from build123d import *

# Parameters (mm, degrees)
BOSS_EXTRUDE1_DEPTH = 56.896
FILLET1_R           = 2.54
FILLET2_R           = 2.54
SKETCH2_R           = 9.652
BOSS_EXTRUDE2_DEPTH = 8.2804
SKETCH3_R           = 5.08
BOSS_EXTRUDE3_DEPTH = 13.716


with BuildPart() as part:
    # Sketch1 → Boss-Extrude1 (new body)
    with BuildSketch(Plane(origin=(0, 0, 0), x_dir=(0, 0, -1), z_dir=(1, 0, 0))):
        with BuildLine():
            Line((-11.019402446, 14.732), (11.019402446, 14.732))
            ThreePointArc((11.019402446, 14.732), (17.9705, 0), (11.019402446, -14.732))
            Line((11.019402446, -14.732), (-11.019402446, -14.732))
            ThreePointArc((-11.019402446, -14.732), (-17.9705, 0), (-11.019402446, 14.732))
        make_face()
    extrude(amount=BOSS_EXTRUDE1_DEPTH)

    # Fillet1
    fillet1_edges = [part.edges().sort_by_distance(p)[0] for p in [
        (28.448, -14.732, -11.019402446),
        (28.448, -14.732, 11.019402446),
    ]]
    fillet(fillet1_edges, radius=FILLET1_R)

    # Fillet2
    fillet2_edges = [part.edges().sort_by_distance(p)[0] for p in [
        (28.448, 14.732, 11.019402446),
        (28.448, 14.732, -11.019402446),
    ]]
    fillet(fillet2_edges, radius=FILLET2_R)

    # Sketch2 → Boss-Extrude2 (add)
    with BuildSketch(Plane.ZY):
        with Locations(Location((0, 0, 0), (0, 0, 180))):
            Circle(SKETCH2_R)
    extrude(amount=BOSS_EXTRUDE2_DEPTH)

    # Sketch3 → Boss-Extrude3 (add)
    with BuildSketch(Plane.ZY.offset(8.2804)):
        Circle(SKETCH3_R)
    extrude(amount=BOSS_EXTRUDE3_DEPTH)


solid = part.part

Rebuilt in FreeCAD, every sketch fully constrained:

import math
import FreeCAD as App
import Part
import Sketcher

V = App.Vector
Q = App.Units.Quantity


def edges_at(feature, points):
    """Names of the edges that pass closest to the given points."""
    edges = feature.Shape.Edges
    near = lambda p: min(range(len(edges)), key=lambda i: edges[i].distToShape(Part.Vertex(*p))[0])
    return sorted({f"Edge{near(p) + 1}" for p in points})

doc = App.newDocument("Part")
body = doc.addObject("PartDesign::Body", "Body")

# Sketch on YZ plane
sketch1 = doc.addObject("Sketcher::SketchObject", "Sketch")
body.addObject(sketch1)
sketch1.AttachmentSupport = (doc.YZ_Plane, [""])
sketch1.MapMode = "FlatFace"
sketch1.addGeometry([
    Part.LineSegment(V(15, -11, 0), V(15, 11, 0)),
    Part.ArcOfCircle(Part.Circle(V(0, -1, 0), V(0, 0, 1), 19), math.radians(39), math.radians(141)),
    Part.LineSegment(V(-15, 11, 0), V(-15, -11, 0)),
    Part.ArcOfCircle(Part.Circle(V(0, 1, 0), V(0, 0, 1), 19), math.radians(-141), math.radians(-39)),
], False)
sketch1.addConstraint([
    Sketcher.Constraint("Coincident", 0, 2, 1, 1),
    Sketcher.Constraint("Coincident", 1, 2, 2, 1),
    Sketcher.Constraint("Coincident", 2, 2, 3, 1),
    Sketcher.Constraint("Coincident", 3, 2, 0, 1),
    Sketcher.Constraint("Vertical", 0),
    Sketcher.Constraint("Vertical", 2),
    Sketcher.Constraint("Equal", 1, 3),
    Sketcher.Constraint("Symmetric", 1, 3, 3, 3, -1, 1),
    Sketcher.Constraint("Symmetric", 0, 2, 1, 2, -2),
    Sketcher.Constraint("DistanceX", -1, 1, 0, 2, Q("0.58 in")),
    Sketcher.Constraint("Radius", 1, 19.086884),
    Sketcher.Constraint("DistanceY", 0, 1, 0, 2, 22.038805),
])
pad1 = doc.addObject("PartDesign::Pad", "Pad")
body.addObject(pad1)
pad1.Profile = sketch1
pad1.Length = Q("2.24 in")
doc.recompute()

fillet = doc.addObject("PartDesign::Fillet", "Fillet")
body.addObject(fillet)
fillet.Base = (pad1, edges_at(pad1, [(28.448, -14.732, -11.019), (28.448, -14.732, 11.019)]))
fillet.Radius = Q("0.1 in")
doc.recompute()

fillet2 = doc.addObject("PartDesign::Fillet", "Fillet001")
body.addObject(fillet2)
fillet2.Base = (fillet, edges_at(fillet, [(28.448, 14.732, 11.019), (28.448, 14.732, -11.019)]))
fillet2.Radius = Q("0.1 in")

# Sketch on YZ plane
sketch2 = doc.addObject("Sketcher::SketchObject", "Sketch001")
body.addObject(sketch2)
sketch2.AttachmentSupport = (doc.YZ_Plane, [""])
sketch2.MapMode = "FlatFace"
sketch2.addGeometry(Part.Circle(V(0, 0, 0), V(0, 0, 1), 10), False)
sketch2.addConstraint([
    Sketcher.Constraint("Coincident", 0, 3, -1, 1),
    Sketcher.Constraint("Diameter", 0, Q("0.76 in")),
])
pad2 = doc.addObject("PartDesign::Pad", "Pad001")
body.addObject(pad2)
pad2.Profile = sketch2
pad2.Length = Q("0.326 in")
pad2.Reversed = True

# Sketch on YZ plane
sketch3 = doc.addObject("Sketcher::SketchObject", "Sketch002")
body.addObject(sketch3)
sketch3.AttachmentSupport = (doc.YZ_Plane, [""])
sketch3.MapMode = "FlatFace"
sketch3.AttachmentOffset = App.Placement(V(0, 0, -0.326 * 25.4), App.Rotation())
sketch3.addGeometry(Part.Circle(V(0, 0, 0), V(0, 0, 1), 5), False)
sketch3.addConstraint([
    Sketcher.Constraint("Coincident", 0, 3, -1, 1),
    Sketcher.Constraint("Diameter", 0, Q("0.4 in")),
])
pad3 = doc.addObject("PartDesign::Pad", "Pad002")
body.addObject(pad3)
pad3.Profile = sketch3
pad3.Length = Q("0.54 in")
pad3.Reversed = True

doc.recompute()
